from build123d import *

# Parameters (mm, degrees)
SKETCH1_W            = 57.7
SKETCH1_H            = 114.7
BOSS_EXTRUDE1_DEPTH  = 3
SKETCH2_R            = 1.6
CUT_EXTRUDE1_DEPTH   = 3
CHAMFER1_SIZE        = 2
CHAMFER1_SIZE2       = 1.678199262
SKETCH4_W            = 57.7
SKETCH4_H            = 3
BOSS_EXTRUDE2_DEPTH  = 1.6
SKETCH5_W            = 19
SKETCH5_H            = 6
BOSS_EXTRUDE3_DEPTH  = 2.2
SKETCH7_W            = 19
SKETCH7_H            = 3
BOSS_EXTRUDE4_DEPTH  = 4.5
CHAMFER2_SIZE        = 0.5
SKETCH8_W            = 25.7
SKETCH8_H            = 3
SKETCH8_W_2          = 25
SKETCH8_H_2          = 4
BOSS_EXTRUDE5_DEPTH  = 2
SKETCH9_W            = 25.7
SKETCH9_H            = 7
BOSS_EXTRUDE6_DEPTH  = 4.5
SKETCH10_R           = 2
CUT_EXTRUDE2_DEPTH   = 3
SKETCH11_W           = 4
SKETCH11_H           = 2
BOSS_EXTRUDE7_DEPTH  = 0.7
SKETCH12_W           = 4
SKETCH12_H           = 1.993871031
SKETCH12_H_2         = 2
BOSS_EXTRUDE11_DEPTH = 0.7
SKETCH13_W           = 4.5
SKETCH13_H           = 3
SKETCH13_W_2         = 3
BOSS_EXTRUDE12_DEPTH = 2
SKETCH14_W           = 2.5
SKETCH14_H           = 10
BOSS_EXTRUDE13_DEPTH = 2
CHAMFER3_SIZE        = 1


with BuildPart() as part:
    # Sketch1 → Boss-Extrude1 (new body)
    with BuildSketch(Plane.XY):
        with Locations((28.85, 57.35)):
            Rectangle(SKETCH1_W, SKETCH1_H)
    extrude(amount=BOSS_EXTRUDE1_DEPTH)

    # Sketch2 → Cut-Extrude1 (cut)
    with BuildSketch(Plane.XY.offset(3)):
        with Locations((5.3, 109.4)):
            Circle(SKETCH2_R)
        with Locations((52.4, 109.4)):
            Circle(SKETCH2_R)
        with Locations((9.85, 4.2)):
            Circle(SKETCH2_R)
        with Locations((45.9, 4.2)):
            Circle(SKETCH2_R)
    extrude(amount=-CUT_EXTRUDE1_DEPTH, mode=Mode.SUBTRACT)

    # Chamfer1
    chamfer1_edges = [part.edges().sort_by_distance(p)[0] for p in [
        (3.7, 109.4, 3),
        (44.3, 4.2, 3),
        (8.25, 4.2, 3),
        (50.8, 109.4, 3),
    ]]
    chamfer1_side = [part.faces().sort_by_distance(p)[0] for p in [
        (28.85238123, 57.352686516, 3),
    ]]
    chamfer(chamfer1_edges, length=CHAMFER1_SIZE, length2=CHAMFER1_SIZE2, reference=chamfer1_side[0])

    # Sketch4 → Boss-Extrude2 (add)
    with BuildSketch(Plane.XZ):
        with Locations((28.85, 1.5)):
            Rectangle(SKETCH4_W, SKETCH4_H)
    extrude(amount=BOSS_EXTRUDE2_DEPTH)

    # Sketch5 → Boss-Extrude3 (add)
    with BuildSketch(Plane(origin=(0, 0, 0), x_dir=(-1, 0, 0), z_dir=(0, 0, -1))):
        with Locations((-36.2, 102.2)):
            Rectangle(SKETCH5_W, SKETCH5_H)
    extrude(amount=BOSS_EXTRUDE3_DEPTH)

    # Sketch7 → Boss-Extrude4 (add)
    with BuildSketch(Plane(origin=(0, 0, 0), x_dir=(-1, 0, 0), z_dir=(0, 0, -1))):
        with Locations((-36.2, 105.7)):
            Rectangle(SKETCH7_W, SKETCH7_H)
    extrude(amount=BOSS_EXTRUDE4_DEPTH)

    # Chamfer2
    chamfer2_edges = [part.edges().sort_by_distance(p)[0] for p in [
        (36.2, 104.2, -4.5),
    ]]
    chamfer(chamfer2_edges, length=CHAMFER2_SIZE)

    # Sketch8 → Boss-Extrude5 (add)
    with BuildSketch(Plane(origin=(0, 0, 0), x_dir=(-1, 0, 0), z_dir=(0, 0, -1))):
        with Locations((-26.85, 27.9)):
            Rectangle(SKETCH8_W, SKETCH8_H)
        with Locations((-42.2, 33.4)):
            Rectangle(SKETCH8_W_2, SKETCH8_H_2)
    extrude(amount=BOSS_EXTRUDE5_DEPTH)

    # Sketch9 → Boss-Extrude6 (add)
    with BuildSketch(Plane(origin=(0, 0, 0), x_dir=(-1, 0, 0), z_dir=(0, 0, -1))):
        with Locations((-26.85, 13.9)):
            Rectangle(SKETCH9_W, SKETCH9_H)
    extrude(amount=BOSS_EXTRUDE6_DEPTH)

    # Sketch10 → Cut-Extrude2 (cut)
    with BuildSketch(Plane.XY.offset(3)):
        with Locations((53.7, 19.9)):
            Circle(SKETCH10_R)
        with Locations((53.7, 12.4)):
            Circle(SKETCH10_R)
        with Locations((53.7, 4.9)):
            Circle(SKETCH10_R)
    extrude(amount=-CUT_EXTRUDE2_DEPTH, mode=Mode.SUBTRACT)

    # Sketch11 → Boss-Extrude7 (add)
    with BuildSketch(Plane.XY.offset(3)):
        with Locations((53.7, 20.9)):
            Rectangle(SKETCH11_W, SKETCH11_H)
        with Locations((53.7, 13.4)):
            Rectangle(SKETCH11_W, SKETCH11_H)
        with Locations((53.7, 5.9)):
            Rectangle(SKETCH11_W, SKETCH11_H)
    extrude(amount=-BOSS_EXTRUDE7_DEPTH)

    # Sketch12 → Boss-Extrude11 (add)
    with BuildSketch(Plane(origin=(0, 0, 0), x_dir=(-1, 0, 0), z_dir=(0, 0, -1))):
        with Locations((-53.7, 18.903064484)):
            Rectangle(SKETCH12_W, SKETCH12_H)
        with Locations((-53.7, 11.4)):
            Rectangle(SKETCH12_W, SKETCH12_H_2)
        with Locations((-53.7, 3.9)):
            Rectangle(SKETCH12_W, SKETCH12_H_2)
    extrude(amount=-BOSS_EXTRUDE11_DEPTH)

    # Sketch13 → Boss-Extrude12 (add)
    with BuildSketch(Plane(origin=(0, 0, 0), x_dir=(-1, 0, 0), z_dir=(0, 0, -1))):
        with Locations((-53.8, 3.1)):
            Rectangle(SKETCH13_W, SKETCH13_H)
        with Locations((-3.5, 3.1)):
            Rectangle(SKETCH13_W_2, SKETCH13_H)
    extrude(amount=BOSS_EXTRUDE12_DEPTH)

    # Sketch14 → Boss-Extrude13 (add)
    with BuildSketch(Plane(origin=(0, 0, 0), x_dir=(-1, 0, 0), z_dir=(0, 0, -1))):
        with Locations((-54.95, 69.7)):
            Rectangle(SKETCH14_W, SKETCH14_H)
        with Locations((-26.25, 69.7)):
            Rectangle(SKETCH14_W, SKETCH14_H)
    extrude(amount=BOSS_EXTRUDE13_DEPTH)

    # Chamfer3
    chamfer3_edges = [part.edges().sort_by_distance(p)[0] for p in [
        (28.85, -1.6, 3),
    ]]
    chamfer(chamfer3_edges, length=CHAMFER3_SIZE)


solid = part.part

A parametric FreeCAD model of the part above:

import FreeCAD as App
import Part
import Sketcher

V = App.Vector


def edges_at(feature, points):
    """Names of the edges that pass closest to the given points."""
    edges = feature.Shape.Edges
    near = lambda p: min(range(len(edges)), key=lambda i: edges[i].distToShape(Part.Vertex(*p))[0])
    return sorted({f"Edge{near(p) + 1}" for p in points})


def add_polygon(sketch, points):
    """Adds a closed chain of lines whose ends are joined by coincident constraints."""
    first, n = sketch.GeometryCount, len(points)
    for a, b in zip(points, points[1:] + points[:1]):
        sketch.addGeometry(Part.LineSegment(App.Vector(*a, 0), App.Vector(*b, 0)), False)
    for i in range(n):
        sketch.addConstraint(Sketcher.Constraint("Coincident", first + i, 2, first + (i + 1) % n, 1))

doc = App.newDocument("Part")
body = doc.addObject("PartDesign::Body", "Body")

# Sketch on XY plane
sketch1 = body.newObject("Sketcher::SketchObject", "Sketch")
sketch1.AttachmentSupport = (doc.getObject("XY_Plane"), [""])
sketch1.MapMode = "FlatFace"
add_polygon(sketch1, [(0, 114.7), (0, 0), (57.7, 0), (57.7, 114.7)])  # lines 0-3
sketch1.addConstraint([
    Sketcher.Constraint("Vertical", 0),
    Sketcher.Constraint("Horizontal", 1),
    Sketcher.Constraint("Vertical", 2),
    Sketcher.Constraint("Horizontal", 3),
    Sketcher.Constraint("Coincident", 0, 2, -1, 1),
    Sketcher.Constraint("DistanceX", 1, 1, 1, 2, 57.7),
    Sketcher.Constraint("DistanceY", 0, 2, 0, 1, 114.7),
])
pad1 = body.newObject("PartDesign::Pad", "Pad")
pad1.Profile = sketch1
pad1.Length = 3

# Sketch on XY plane
sketch2 = body.newObject("Sketcher::SketchObject", "Sketch001")
sketch2.AttachmentSupport = (doc.getObject("XY_Plane"), [""])
sketch2.MapMode = "FlatFace"
sketch2.AttachmentOffset = App.Placement(V(0, 0, 3), App.Rotation())
sketch2.addGeometry([
    Part.Circle(V(5.3, 109.4, 0), V(0, 0, 1), 1.6),
    Part.Circle(V(52.4, 109.4, 0), V(0, 0, 1), 1.6),
    Part.Circle(V(9.85, 4.2, 0), V(0, 0, 1), 1.6),
    Part.Circle(V(45.9, 4.2, 0), V(0, 0, 1), 1.6),
], False)
sketch2.addConstraint([
    Sketcher.Constraint("Equal", 0, 1),
    Sketcher.Constraint("Equal", 1, 2),
    Sketcher.Constraint("Equal", 2, 3),
    Sketcher.Constraint("Horizontal", 0, 3, 1, 3),
    Sketcher.Constraint("Horizontal", 2, 3, 3, 3),
    Sketcher.Constraint("Diameter", 0, 3.2),
    Sketcher.Constraint("DistanceX", -1, 1, 0, 3, 5.3),
    Sketcher.Constraint("DistanceY", -1, 1, 0, 3, 109.4),
    Sketcher.Constraint("DistanceX", -1, 1, 1, 3, 52.4),
    Sketcher.Constraint("DistanceY", -1, 1, 2, 3, 4.2),
    Sketcher.Constraint("DistanceX", -1, 1, 3, 3, 45.9),
    Sketcher.Constraint("DistanceX", -1, 1, 2, 3, 9.85),
])
pocket1 = body.newObject("PartDesign::Pocket", "Pocket")
pocket1.Profile = sketch2
pocket1.Length = 3
doc.recompute()

chamfer = body.newObject("PartDesign::Chamfer", "Chamfer")
chamfer.Base = (pocket1, edges_at(pocket1, [
    (3.7, 109.4, 3),
    (44.3, 4.2, 3),
    (8.25, 4.2, 3),
    (50.8, 109.4, 3),
]))
chamfer.ChamferType = "Two distances"
chamfer.Size = 2
chamfer.Size2 = 1.678199

# Sketch on XZ plane
sketch3 = body.newObject("Sketcher::SketchObject", "Sketch002")
sketch3.AttachmentSupport = (doc.getObject("XZ_Plane"), [""])
sketch3.MapMode = "FlatFace"
add_polygon(sketch3, [(0, 3), (0, 0), (57.7, 0), (57.7, 3)])  # lines 0-3
sketch3.addConstraint([
    Sketcher.Constraint("Vertical", 0),
    Sketcher.Constraint("Horizontal", 1),
    Sketcher.Constraint("Vertical", 2),
    Sketcher.Constraint("Horizontal", 3),
    Sketcher.Constraint("Coincident", 0, 2, -1, 1),
    Sketcher.Constraint("DistanceY", 0, 2, 0, 1, 3.0),
    Sketcher.Constraint("DistanceX", 1, 1, 1, 2, 57.7),
])
pad2 = body.newObject("PartDesign::Pad", "Pad001")
pad2.Profile = sketch3
pad2.Length = 1.6

# Sketch on XY plane
sketch4 = body.newObject("Sketcher::SketchObject", "Sketch003")
sketch4.AttachmentSupport = (doc.getObject("XY_Plane"), [""])
sketch4.MapMode = "FlatFace"
add_polygon(sketch4, [(45.7, 105.2), (45.7, 99.2), (26.7, 99.2), (26.7, 105.2)])  # lines 0-3
sketch4.addConstraint([
    Sketcher.Constraint("Vertical", 0),
    Sketcher.Constraint("Horizontal", 1),
    Sketcher.Constraint("Vertical", 2),
    Sketcher.Constraint("Horizontal", 3),
    Sketcher.Constraint("DistanceX", 1, 2, 1, 1, 19.0),
    Sketcher.Constraint("DistanceY", 0, 2, 0, 1, 6.0),
    Sketcher.Constraint("DistanceX", -1, 1, 0, 2, 45.7),
    Sketcher.Constraint("DistanceY", -1, 1, 0, 2, 99.2),
])
pad3 = body.newObject("PartDesign::Pad", "Pad002")
pad3.Profile = sketch4
pad3.Length = 2.2
pad3.Reversed = True

# Sketch on XY plane
sketch5 = body.newObject("Sketcher::SketchObject", "Sketch004")
sketch5.AttachmentSupport = (doc.getObject("XY_Plane"), [""])
sketch5.MapMode = "FlatFace"
add_polygon(sketch5, [(45.7, 107.2), (45.7, 104.2), (26.7, 104.2), (26.7, 107.2)])  # lines 0-3
sketch5.addConstraint([
    Sketcher.Constraint("Vertical", 0),
    Sketcher.Constraint("Horizontal", 1),
    Sketcher.Constraint("Vertical", 2),
    Sketcher.Constraint("Horizontal", 3),
    Sketcher.Constraint("DistanceX", 1, 2, 1, 1, 19.0),
    Sketcher.Constraint("DistanceY", 0, 2, 0, 1, 3.0),
    Sketcher.Constraint("DistanceX", -1, 1, 0, 2, 45.7),
    Sketcher.Constraint("DistanceY", -1, 1, 0, 2, 104.2),
])
pad4 = body.newObject("PartDesign::Pad", "Pad003")
pad4.Profile = sketch5
pad4.Length = 4.5
pad4.Reversed = True
doc.recompute()

chamfer2 = body.newObject("PartDesign::Chamfer", "Chamfer001")
chamfer2.Base = (pad4, edges_at(pad4, [(36.2, 104.2, -4.5)]))
chamfer2.Size = 0.5

# Sketch on XY plane
sketch6 = body.newObject("Sketcher::SketchObject", "Sketch005")
sketch6.AttachmentSupport = (doc.getObject("XY_Plane"), [""])
sketch6.MapMode = "FlatFace"
add_polygon(sketch6, [(39.7, 29.4), (39.7, 26.4), (14, 26.4), (14, 29.4)])  # lines 0-3
add_polygon(sketch6, [(54.7, 35.4), (54.7, 31.4), (29.7, 31.4), (29.7, 35.4)])  # lines 4-7
sketch6.addConstraint([
    Sketcher.Constraint("Vertical", 0),
    Sketcher.Constraint("Horizontal", 1),
    Sketcher.Constraint("Vertical", 2),
    Sketcher.Constraint("Horizontal", 3),
    Sketcher.Constraint("Vertical", 4),
    Sketcher.Constraint("Horizontal", 5),
    Sketcher.Constraint("Vertical", 6),
    Sketcher.Constraint("Horizontal", 7),
    Sketcher.Constraint("DistanceX", 5, 2, 5, 1, 25.0),
    Sketcher.Constraint("DistanceY", 0, 2, 0, 1, 3.0),
    Sketcher.Constraint("DistanceY", 4, 2, 4, 1, 4.0),
    Sketcher.Constraint("DistanceX", 1, 2, 1, 1, 25.7),
    Sketcher.Constraint("DistanceX", -1, 1, 1, 2, 14.0),
    Sketcher.Constraint("DistanceX", 3, 2, 4, 2, 15.0),
    Sketcher.Constraint("DistanceY", 3, 2, 4, 2, 2.0),
    Sketcher.Constraint("DistanceY", -1, 1, 0, 2, 26.4),
])
pad5 = body.newObject("PartDesign::Pad", "Pad004")
pad5.Profile = sketch6
pad5.Length = 2
pad5.Reversed = True

# Sketch on XY plane
sketch7 = body.newObject("Sketcher::SketchObject", "Sketch006")
sketch7.AttachmentSupport = (doc.getObject("XY_Plane"), [""])
sketch7.MapMode = "FlatFace"
add_polygon(sketch7, [(39.7, 17.4), (39.7, 10.4), (14, 10.4), (14, 17.4)])  # lines 0-3
sketch7.addConstraint([
    Sketcher.Constraint("Vertical", 0),
    Sketcher.Constraint("Horizontal", 1),
    Sketcher.Constraint("Vertical", 2),
    Sketcher.Constraint("Horizontal", 3),
    Sketcher.Constraint("DistanceY", 0, 2, 0, 1, 7.0),
    Sketcher.Constraint("DistanceX", 1, 2, 1, 1, 25.7),
    Sketcher.Constraint("DistanceX", -1, 1, 1, 2, 14.0),
    Sketcher.Constraint("DistanceY", -1, 1, 0, 2, 10.4),
])
pad6 = body.newObject("PartDesign::Pad", "Pad005")
pad6.Profile = sketch7
pad6.Length = 4.5
pad6.Reversed = True

# Sketch on XY plane
sketch8 = body.newObject("Sketcher::SketchObject", "Sketch007")
sketch8.AttachmentSupport = (doc.getObject("XY_Plane"), [""])
sketch8.MapMode = "FlatFace"
sketch8.AttachmentOffset = App.Placement(V(0, 0, 3), App.Rotation())
sketch8.addGeometry([
    Part.Circle(V(53.7, 19.9, 0), V(0, 0, 1), 2),
    Part.Circle(V(53.7, 12.4, 0), V(0, 0, 1), 2),
    Part.Circle(V(53.7, 4.9, 0), V(0, 0, 1), 2),
], False)
sketch8.addConstraint([
    Sketcher.Constraint("Equal", 0, 1),
    Sketcher.Constraint("Equal", 1, 2),
    Sketcher.Constraint("Vertical", 0, 3, 1, 3),
    Sketcher.Constraint("Vertical", 1, 3, 2, 3),
    Sketcher.Constraint("Diameter", 0, 4.0),
    Sketcher.Constraint("DistanceY", 2, 3, 0, 3, 15.0),
    Sketcher.Constraint("DistanceX", -1, 1, 0, 3, 53.7),
    Sketcher.Constraint("DistanceY", -1, 1, 0, 3, 19.9),
    Sketcher.Constraint("DistanceY", -1, 1, 1, 3, 12.4),
])
pocket2 = body.newObject("PartDesign::Pocket", "Pocket001")
pocket2.Profile = sketch8
pocket2.Length = 3

# Sketch on XY plane
sketch9 = body.newObject("Sketcher::SketchObject", "Sketch008")
sketch9.AttachmentSupport = (doc.getObject("XY_Plane"), [""])
sketch9.MapMode = "FlatFace"
sketch9.AttachmentOffset = App.Placement(V(0, 0, 3), App.Rotation())
add_polygon(sketch9, [(51.7, 21.9), (51.7, 19.9), (55.7, 19.9), (55.7, 21.9)])  # lines 0-3
add_polygon(sketch9, [(51.7, 14.4), (51.7, 12.4), (55.7, 12.4), (55.7, 14.4)])  # lines 4-7
add_polygon(sketch9, [(51.7, 6.9), (51.7, 4.9), (55.7, 4.9), (55.7, 6.9)])  # lines 8-11
sketch9.addConstraint([
    Sketcher.Constraint("Vertical", 0),
    Sketcher.Constraint("Horizontal", 1),
    Sketcher.Constraint("Vertical", 2),
    Sketcher.Constraint("Horizontal", 3),
    Sketcher.Constraint("Vertical", 4),
    Sketcher.Constraint("Horizontal", 5),
    Sketcher.Constraint("Vertical", 6),
    Sketcher.Constraint("Horizontal", 7),
    Sketcher.Constraint("Vertical", 8),
    Sketcher.Constraint("Horizontal", 9),
    Sketcher.Constraint("Vertical", 10),
    Sketcher.Constraint("Horizontal", 11),
    Sketcher.Constraint("Vertical", 3, 2, 4, 2),
    Sketcher.Constraint("Vertical", 2, 2, 5, 2),
    Sketcher.Constraint("Vertical", 7, 2, 8, 2),
    Sketcher.Constraint("Vertical", 6, 2, 9, 2),
    Sketcher.Constraint("Equal", 2, 4),
    Sketcher.Constraint("Equal", 6, 8),
    Sketcher.Constraint("DistanceX", 1, 1, 1, 2, 4.0),
    Sketcher.Constraint("DistanceY", 0, 2, 0, 1, 2.0),
    Sketcher.Constraint("DistanceY", 8, 2, 0, 2, 15.0),
    Sketcher.Constraint("DistanceX", -1, 1, 0, 2, 51.7),
    Sketcher.Constraint("DistanceY", -1, 1, 0, 2, 19.9),
    Sketcher.Constraint("DistanceY", -1, 1, 4, 2, 12.4),
])
pad7 = body.newObject("PartDesign::Pad", "Pad006")
pad7.Profile = sketch9
pad7.Length = 0.7
pad7.Reversed = True

# Sketch on XY plane
sketch10 = body.newObject("Sketcher::SketchObject", "Sketch009")
sketch10.AttachmentSupport = (doc.getObject("XY_Plane"), [""])
sketch10.MapMode = "FlatFace"
add_polygon(sketch10, [(55.7, 19.9), (55.7, 17.906129), (51.7, 17.906129), (51.7, 19.9)])  # lines 0-3
add_polygon(sketch10, [(55.7, 12.4), (55.7, 10.4), (51.7, 10.4), (51.7, 12.4)])  # lines 4-7
add_polygon(sketch10, [(55.7, 4.9), (55.7, 2.9), (51.7, 2.9), (51.7, 4.9)])  # lines 8-11
sketch10.addConstraint([
    Sketcher.Constraint("Vertical", 0),
    Sketcher.Constraint("Horizontal", 1),
    Sketcher.Constraint("Vertical", 2),
    Sketcher.Constraint("Horizontal", 3),
    Sketcher.Constraint("Vertical", 4),
    Sketcher.Constraint("Horizontal", 5),
    Sketcher.Constraint("Vertical", 6),
    Sketcher.Constraint("Horizontal", 7),
    Sketcher.Constraint("Vertical", 8),
    Sketcher.Constraint("Horizontal", 9),
    Sketcher.Constraint("Vertical", 10),
    Sketcher.Constraint("Horizontal", 11),
    Sketcher.Constraint("Vertical", 3, 2, 4, 2),
    Sketcher.Constraint("Vertical", 2, 2, 5, 2),
    Sketcher.Constraint("Vertical", 7, 2, 8, 2),
    Sketcher.Constraint("Vertical", 6, 2, 9, 2),
    Sketcher.Constraint("Equal", 6, 8),
    Sketcher.Constraint("DistanceX", 1, 2, 1, 1, 4.0),
    Sketcher.Constraint("DistanceY", 4, 2, 4, 1, 2.0),
    Sketcher.Constraint("DistanceX", -1, 1, 0, 2, 55.7),
    Sketcher.Constraint("DistanceY", -1, 1, 2, 2, 19.9),
    Sketcher.Constraint("DistanceY", -1, 1, 4, 2, 10.4),
    Sketcher.Constraint("DistanceY", -1, 1, 8, 2, 2.9),
    Sketcher.Constraint("DistanceY", 0, 2, 0, 1, 1.993871),
])
pad8 = body.newObject("PartDesign::Pad", "Pad007")
pad8.Profile = sketch10
pad8.Length = 0.7

# Sketch on XY plane
sketch11 = body.newObject("Sketcher::SketchObject", "Sketch010")
sketch11.AttachmentSupport = (doc.getObject("XY_Plane"), [""])
sketch11.MapMode = "FlatFace"
add_polygon(sketch11, [(56.05, 4.6), (56.05, 1.6), (51.55, 1.6), (51.55, 4.6)])  # lines 0-3
add_polygon(sketch11, [(5, 4.6), (5, 1.6), (2, 1.6), (2, 4.6)])  # lines 4-7
sketch11.addConstraint([
    Sketcher.Constraint("Vertical", 0),
    Sketcher.Constraint("Horizontal", 1),
    Sketcher.Constraint("Vertical", 2),
    Sketcher.Constraint("Horizontal", 3),
    Sketcher.Constraint("Vertical", 4),
    Sketcher.Constraint("Horizontal", 5),
    Sketcher.Constraint("Vertical", 6),
    Sketcher.Constraint("Horizontal", 7),
    Sketcher.Constraint("Horizontal", 1, 2, 4, 2),
    Sketcher.Constraint("Horizontal", 3, 2, 6, 2),
    Sketcher.Constraint("Equal", 7, 0),
    Sketcher.Constraint("DistanceX", 5, 2, 5, 1, 3.0),
    Sketcher.Constraint("DistanceX", 1, 2, 1, 1, 4.5),
    Sketcher.Constraint("DistanceX", -1, 1, 4, 2, 5.0),
    Sketcher.Constraint("DistanceY", -1, 1, 0, 2, 1.6),
    Sketcher.Constraint("DistanceX", -1, 1, 0, 2, 56.05),
])
pad9 = body.newObject("PartDesign::Pad", "Pad008")
pad9.Profile = sketch11
pad9.Length = 2
pad9.Reversed = True

# Sketch on XY plane
sketch12 = body.newObject("Sketcher::SketchObject", "Sketch011")
sketch12.AttachmentSupport = (doc.getObject("XY_Plane"), [""])
sketch12.MapMode = "FlatFace"
add_polygon(sketch12, [(56.2, 74.7), (56.2, 64.7), (53.7, 64.7), (53.7, 74.7)])  # lines 0-3
add_polygon(sketch12, [(27.5, 74.7), (27.5, 64.7), (25, 64.7), (25, 74.7)])  # lines 4-7
sketch12.addConstraint([
    Sketcher.Constraint("Vertical", 0),
    Sketcher.Constraint("Horizontal", 1),
    Sketcher.Constraint("Vertical", 2),
    Sketcher.Constraint("Horizontal", 3),
    Sketcher.Constraint("Vertical", 4),
    Sketcher.Constraint("Horizontal", 5),
    Sketcher.Constraint("Vertical", 6),
    Sketcher.Constraint("Horizontal", 7),
    Sketcher.Constraint("Horizontal", 1, 2, 4, 2),
    Sketcher.Constraint("Horizontal", 3, 2, 6, 2),
    Sketcher.Constraint("Equal", 3, 5),
    Sketcher.Constraint("DistanceY", 0, 2, 0, 1, 10.0),
    Sketcher.Constraint("DistanceX", 1, 2, 1, 1, 2.5),
    Sketcher.Constraint("DistanceX", -1, 1, 5, 2, 25.0),
    Sketcher.Constraint("DistanceX", -1, 1, 0, 2, 56.2),
    Sketcher.Constraint("DistanceY", -1, 1, 0, 2, 64.7),
])
pad10 = body.newObject("PartDesign::Pad", "Pad009")
pad10.Profile = sketch12
pad10.Length = 2
pad10.Reversed = True
doc.recompute()

chamfer3 = body.newObject("PartDesign::Chamfer", "Chamfer002")
chamfer3.Base = (pad10, edges_at(pad10, [(28.85, -1.6, 3)]))
chamfer3.Size = 1

doc.recompute()
